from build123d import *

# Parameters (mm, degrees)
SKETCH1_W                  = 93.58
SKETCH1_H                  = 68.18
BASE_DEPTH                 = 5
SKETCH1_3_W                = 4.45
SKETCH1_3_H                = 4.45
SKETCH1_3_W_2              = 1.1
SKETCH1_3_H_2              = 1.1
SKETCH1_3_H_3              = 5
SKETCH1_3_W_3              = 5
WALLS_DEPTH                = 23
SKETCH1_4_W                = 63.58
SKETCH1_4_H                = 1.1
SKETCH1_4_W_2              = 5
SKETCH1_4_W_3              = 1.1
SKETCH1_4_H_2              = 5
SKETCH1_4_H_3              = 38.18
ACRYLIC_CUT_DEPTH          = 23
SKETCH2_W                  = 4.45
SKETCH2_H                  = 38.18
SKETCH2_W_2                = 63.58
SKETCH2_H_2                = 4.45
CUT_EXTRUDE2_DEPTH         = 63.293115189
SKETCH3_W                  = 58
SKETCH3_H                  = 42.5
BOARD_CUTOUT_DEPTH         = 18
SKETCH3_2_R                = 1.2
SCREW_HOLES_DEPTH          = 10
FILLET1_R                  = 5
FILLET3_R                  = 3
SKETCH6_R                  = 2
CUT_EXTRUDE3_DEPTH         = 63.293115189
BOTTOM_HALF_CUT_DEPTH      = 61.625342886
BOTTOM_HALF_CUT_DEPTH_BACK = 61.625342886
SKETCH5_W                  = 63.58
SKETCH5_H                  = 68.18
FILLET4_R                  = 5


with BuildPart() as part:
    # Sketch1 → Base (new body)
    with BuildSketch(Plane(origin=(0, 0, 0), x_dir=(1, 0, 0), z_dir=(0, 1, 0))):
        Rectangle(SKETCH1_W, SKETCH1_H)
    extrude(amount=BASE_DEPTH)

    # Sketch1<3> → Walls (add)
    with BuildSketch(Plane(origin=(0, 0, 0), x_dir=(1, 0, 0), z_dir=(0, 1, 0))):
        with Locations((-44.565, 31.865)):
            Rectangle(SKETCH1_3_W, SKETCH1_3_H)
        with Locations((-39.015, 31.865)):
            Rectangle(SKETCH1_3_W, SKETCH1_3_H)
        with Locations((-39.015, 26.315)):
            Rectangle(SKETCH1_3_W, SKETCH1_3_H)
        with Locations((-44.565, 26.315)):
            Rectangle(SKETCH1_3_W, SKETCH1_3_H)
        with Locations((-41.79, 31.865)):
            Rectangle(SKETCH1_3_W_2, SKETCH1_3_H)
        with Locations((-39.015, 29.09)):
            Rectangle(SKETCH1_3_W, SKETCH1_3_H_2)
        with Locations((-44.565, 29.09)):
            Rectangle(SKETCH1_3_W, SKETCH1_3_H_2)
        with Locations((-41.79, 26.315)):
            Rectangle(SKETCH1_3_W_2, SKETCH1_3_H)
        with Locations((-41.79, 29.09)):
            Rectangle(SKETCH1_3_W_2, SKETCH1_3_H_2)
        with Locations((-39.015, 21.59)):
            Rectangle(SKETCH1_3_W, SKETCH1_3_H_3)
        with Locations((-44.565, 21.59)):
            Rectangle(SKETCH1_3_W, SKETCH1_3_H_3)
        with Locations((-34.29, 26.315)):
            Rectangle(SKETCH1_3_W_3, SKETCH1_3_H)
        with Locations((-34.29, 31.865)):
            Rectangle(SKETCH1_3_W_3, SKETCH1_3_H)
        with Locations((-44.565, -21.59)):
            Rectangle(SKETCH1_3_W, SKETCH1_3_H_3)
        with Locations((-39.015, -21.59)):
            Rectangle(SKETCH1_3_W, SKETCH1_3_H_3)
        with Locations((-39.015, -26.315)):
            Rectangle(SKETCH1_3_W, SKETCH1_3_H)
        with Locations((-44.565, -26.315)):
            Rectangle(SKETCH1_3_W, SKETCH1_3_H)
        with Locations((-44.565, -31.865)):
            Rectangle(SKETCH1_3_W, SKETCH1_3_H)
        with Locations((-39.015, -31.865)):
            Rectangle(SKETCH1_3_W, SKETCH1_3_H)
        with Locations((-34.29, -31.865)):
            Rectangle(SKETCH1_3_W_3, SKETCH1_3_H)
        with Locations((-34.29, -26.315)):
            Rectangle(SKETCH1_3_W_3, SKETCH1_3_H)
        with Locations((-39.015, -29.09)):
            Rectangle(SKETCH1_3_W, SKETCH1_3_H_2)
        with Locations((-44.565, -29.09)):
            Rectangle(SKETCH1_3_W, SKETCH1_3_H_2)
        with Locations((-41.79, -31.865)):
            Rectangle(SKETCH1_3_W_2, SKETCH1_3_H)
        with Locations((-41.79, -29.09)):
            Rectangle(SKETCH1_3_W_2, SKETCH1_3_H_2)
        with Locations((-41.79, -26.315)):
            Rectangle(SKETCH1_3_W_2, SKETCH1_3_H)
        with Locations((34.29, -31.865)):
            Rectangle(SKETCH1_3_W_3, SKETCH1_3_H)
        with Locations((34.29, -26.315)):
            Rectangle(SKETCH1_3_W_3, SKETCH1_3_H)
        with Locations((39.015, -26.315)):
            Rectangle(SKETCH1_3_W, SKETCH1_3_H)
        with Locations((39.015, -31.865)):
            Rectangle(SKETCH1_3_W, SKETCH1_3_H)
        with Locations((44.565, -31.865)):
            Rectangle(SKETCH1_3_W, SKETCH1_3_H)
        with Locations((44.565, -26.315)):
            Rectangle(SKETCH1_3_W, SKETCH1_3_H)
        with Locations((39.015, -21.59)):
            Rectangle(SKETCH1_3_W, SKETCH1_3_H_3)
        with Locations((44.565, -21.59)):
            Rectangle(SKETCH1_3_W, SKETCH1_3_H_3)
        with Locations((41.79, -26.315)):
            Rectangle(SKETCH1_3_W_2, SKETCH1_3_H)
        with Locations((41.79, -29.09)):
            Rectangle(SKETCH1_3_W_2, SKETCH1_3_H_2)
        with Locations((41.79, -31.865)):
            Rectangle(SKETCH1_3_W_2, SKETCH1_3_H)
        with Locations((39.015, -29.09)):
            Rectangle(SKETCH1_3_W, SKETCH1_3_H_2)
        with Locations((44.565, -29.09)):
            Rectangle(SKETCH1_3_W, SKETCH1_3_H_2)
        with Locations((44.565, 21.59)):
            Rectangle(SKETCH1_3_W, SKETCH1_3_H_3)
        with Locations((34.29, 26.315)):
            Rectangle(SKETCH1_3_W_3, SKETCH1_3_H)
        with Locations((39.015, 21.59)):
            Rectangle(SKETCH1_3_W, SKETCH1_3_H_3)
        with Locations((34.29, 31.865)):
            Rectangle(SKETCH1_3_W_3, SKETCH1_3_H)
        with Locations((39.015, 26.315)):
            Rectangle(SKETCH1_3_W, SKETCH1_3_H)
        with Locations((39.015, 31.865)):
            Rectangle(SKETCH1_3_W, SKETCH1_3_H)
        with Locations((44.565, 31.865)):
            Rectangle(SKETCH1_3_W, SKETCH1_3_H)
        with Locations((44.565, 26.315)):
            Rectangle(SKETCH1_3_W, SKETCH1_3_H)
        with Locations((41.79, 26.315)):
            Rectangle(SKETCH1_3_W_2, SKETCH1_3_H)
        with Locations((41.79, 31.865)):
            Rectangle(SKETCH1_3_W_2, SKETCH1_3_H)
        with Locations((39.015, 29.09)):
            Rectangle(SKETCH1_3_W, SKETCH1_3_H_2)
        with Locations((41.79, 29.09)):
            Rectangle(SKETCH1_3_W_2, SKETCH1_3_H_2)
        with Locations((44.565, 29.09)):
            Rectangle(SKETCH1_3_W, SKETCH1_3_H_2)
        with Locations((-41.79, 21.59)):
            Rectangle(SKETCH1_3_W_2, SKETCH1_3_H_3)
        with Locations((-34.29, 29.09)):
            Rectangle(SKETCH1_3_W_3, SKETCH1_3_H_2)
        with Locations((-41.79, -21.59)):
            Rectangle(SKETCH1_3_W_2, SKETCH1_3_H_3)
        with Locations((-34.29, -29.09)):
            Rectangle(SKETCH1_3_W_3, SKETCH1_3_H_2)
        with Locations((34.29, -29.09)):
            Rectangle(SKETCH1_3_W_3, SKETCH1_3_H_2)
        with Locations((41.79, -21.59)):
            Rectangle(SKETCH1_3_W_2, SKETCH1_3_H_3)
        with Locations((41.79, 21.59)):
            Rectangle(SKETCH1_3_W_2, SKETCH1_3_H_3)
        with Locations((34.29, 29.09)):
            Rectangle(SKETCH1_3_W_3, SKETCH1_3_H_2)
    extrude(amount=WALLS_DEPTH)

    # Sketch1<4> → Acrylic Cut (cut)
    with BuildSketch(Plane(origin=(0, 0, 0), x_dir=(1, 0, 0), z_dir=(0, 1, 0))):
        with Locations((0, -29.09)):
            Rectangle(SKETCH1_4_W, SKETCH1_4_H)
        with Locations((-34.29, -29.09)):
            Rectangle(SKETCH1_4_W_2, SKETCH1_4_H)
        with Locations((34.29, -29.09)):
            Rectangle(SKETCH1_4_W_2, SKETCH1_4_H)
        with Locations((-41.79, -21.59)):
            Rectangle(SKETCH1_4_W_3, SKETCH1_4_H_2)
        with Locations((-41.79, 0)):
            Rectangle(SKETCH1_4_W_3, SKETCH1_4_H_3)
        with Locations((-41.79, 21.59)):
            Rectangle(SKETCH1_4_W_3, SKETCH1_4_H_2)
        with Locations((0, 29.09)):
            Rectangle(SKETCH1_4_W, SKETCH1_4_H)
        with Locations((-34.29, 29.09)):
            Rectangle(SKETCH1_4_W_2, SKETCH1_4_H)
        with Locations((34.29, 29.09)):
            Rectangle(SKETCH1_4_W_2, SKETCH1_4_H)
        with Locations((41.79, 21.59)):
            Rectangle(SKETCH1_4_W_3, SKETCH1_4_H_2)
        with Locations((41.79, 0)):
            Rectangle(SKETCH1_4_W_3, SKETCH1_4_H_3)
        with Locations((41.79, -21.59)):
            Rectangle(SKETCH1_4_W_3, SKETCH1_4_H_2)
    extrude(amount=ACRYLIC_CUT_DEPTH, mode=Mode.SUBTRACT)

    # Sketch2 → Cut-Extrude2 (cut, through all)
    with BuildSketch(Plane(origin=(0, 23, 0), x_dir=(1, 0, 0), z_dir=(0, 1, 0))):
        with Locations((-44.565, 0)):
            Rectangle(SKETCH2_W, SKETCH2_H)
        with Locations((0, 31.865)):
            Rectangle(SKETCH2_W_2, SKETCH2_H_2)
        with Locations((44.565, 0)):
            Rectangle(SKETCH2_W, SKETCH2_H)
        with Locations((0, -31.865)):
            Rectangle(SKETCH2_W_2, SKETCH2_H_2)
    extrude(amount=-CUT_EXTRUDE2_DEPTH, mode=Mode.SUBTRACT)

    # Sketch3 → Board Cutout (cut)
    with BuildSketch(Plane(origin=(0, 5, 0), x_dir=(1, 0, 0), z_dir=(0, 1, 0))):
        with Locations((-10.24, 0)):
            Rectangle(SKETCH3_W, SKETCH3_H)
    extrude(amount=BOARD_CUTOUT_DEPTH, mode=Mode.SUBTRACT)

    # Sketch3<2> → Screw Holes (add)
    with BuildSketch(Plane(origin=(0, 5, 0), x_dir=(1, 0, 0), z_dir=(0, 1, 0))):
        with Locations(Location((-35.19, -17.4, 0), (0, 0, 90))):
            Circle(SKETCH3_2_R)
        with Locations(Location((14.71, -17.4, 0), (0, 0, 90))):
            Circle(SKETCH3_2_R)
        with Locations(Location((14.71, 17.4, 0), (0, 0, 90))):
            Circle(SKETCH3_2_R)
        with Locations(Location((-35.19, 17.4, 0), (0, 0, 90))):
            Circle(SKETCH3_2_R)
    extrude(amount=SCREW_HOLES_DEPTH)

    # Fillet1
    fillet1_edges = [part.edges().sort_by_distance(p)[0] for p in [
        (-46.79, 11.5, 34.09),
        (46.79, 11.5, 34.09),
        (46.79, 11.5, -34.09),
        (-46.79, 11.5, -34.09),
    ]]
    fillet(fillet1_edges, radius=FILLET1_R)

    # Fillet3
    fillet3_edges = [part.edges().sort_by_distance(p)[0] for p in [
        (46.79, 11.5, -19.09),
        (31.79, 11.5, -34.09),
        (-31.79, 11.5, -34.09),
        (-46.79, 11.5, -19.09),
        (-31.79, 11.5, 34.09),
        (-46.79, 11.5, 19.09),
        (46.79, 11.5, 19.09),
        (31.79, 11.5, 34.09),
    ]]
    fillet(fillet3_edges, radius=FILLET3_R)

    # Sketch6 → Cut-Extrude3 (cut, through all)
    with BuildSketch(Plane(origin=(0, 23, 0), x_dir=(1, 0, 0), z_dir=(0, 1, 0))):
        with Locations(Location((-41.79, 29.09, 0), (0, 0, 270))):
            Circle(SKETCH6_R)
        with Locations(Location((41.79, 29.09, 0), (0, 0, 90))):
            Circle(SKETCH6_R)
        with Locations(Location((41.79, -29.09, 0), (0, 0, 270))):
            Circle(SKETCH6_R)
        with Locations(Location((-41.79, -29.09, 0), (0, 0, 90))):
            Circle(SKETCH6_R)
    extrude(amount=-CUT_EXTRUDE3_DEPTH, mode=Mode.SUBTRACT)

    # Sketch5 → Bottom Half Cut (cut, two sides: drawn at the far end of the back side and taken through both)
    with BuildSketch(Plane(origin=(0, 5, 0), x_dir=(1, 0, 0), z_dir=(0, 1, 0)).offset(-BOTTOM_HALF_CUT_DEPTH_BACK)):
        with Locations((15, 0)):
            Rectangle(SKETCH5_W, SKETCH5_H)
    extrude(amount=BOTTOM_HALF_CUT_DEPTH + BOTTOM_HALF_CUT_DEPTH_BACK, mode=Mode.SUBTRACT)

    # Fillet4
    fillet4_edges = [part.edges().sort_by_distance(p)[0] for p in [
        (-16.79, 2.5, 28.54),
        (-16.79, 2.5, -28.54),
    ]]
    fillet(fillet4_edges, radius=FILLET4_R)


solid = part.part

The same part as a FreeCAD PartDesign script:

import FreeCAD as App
import Part
import Sketcher

V = App.Vector


def edges_at(feature, points):
    """Names of the edges that pass closest to the given points."""
    edges = feature.Shape.Edges
    near = lambda p: min(range(len(edges)), key=lambda i: edges[i].distToShape(Part.Vertex(*p))[0])
    return sorted({f"Edge{near(p) + 1}" for p in points})


def add_polygon(sketch, points):
    """Adds a closed chain of lines whose ends are joined by coincident constraints."""
    first, n = sketch.GeometryCount, len(points)
    for a, b in zip(points, points[1:] + points[:1]):
        sketch.addGeometry(Part.LineSegment(App.Vector(*a, 0), App.Vector(*b, 0)), False)
    for i in range(n):
        sketch.addConstraint(Sketcher.Constraint("Coincident", first + i, 2, first + (i + 1) % n, 1))

doc = App.newDocument("Part")
params = doc.addObject("Spreadsheet::Sheet", "Params")
for row, (alias, value) in enumerate([
    ("sketch1_width", "93.58 mm"),
    ("sketch1_height", "68.18 mm"),
    ("pad1_length", "5 mm"),
    ("sketch2_width", "10 mm"),
    ("sketch2_width2", "5 mm"),
    ("pad2_length", "23 mm"),
    ("sketch3_width", "1.1 mm"),
    ("sketch3_width2", "73.58 mm"),
    ("sketch3_height", "48.18 mm"),
    ("pocket1_length", "23 mm"),
    ("sketch4_width", "4.45 mm"),
    ("sketch4_width2", "63.58 mm"),
    ("sketch4_height", "38.18 mm"),
    ("sketch5_width", "58 mm"),
    ("sketch5_height", "42.5 mm"),
    ("pocket3_length", "18 mm"),
    ("sketch6_diameter", "2.4 mm"),
    ("pad3_length", "10 mm"),
    ("fillet_radius", "5 mm"),
    ("fillet2_radius", "3 mm"),
    ("sketch7_diameter", "4 mm"),
    ("sketch8_width", "63.58 mm"),
    ("sketch8_height", "68.18 mm"),
    ("fillet3_radius", "5 mm"),
], start=1):
    params.set(f"A{row}", alias)
    params.set(f"B{row}", "=" + value)
    params.setAlias(f"B{row}", alias)

body = doc.addObject("PartDesign::Body", "Body")

sketch1 = doc.addObject("Sketcher::SketchObject", "Sketch")
body.addObject(sketch1)
sketch1.AttachmentSupport = (doc.XZ_Plane, [""])
sketch1.MapMode = "FlatFace"
add_polygon(sketch1, [(-46.79, -34.09), (-46.79, 34.09), (46.79, 34.09), (46.79, -34.09)])
sketch1.addConstraint(Sketcher.Constraint("Vertical", 0))
sketch1.addConstraint(Sketcher.Constraint("Horizontal", 1))
sketch1.addConstraint(Sketcher.Constraint("Vertical", 2))
sketch1.addConstraint(Sketcher.Constraint("Horizontal", 3))
sketch1.addConstraint(Sketcher.Constraint("Symmetric", 0, 2, 2, 2, -1, 1))
sketch1.addConstraint(Sketcher.Constraint("DistanceX", 1, 1, 1, 2, 93.58))
sketch1.addConstraint(Sketcher.Constraint("DistanceY", 0, 1, 0, 2, 68.18))
sketch1.setExpression("Constraints[9]", "Params.sketch1_width")
sketch1.setExpression("Constraints[10]", "Params.sketch1_height")
pad1 = doc.addObject("PartDesign::Pad", "Pad")
body.addObject(pad1)
pad1.Profile = sketch1
pad1.setExpression("Length", "Params.pad1_length")
pad1.Reversed = True

sketch2 = doc.addObject("Sketcher::SketchObject", "Sketch001")
body.addObject(sketch2)
sketch2.AttachmentSupport = (doc.XZ_Plane, [""])
sketch2.MapMode = "FlatFace"
add_polygon(sketch2, [(-46.79, -34.09), (-46.79, -19.09), (-36.79, -19.09), (-36.79, -24.09), (-31.79, -24.09), (-31.79, -34.09)])
add_polygon(sketch2, [(-46.79, 19.09), (-46.79, 34.09), (-31.79, 34.09), (-31.79, 24.09), (-36.79, 24.09), (-36.79, 19.09)])
add_polygon(sketch2, [(31.79, 34.09), (46.79, 34.09), (46.79, 19.09), (36.79, 19.09), (36.79, 24.09), (31.79, 24.09)])
add_polygon(sketch2, [(46.79, -19.09), (46.79, -34.09), (31.79, -34.09), (31.79, -24.09), (36.79, -24.09), (36.79, -19.09)])
sketch2.addConstraint(Sketcher.Constraint("Vertical", 0))
sketch2.addConstraint(Sketcher.Constraint("Horizontal", 1))
sketch2.addConstraint(Sketcher.Constraint("Vertical", 2))
sketch2.addConstraint(Sketcher.Constraint("Horizontal", 3))
sketch2.addConstraint(Sketcher.Constraint("Vertical", 4))
sketch2.addConstraint(Sketcher.Constraint("Horizontal", 5))
sketch2.addConstraint(Sketcher.Constraint("Vertical", 6))
sketch2.addConstraint(Sketcher.Constraint("Horizontal", 7))
sketch2.addConstraint(Sketcher.Constraint("Vertical", 8))
sketch2.addConstraint(Sketcher.Constraint("Horizontal", 9))
sketch2.addConstraint(Sketcher.Constraint("Vertical", 10))
sketch2.addConstraint(Sketcher.Constraint("Horizontal", 11))
sketch2.addConstraint(Sketcher.Constraint("Horizontal", 12))
sketch2.addConstraint(Sketcher.Constraint("Vertical", 13))
sketch2.addConstraint(Sketcher.Constraint("Horizontal", 14))
sketch2.addConstraint(Sketcher.Constraint("Vertical", 15))
sketch2.addConstraint(Sketcher.Constraint("Horizontal", 16))
sketch2.addConstraint(Sketcher.Constraint("Vertical", 17))
sketch2.addConstraint(Sketcher.Constraint("Vertical", 18))
sketch2.addConstraint(Sketcher.Constraint("Horizontal", 19))
sketch2.addConstraint(Sketcher.Constraint("Vertical", 20))
sketch2.addConstraint(Sketcher.Constraint("Horizontal", 21))
sketch2.addConstraint(Sketcher.Constraint("Vertical", 22))
sketch2.addConstraint(Sketcher.Constraint("Horizontal", 23))
sketch2.addConstraint(Sketcher.Constraint("Symmetric", 5, 2, 12, 2, -1, 1))
sketch2.addConstraint(Sketcher.Constraint("Symmetric", 1, 2, 14, 2, -1, 1))
sketch2.addConstraint(Sketcher.Constraint("Symmetric", 3, 2, 16, 2, -1, 1))
sketch2.addConstraint(Sketcher.Constraint("Symmetric", 6, 2, 18, 2, -1, 1))
sketch2.addConstraint(Sketcher.Constraint("Symmetric", 8, 2, 20, 2, -1, 1))
sketch2.addConstraint(Sketcher.Constraint("Symmetric", 10, 2, 22, 2, -1, 1))
sketch2.addConstraint(Sketcher.Constraint("Symmetric", 6, 2, 12, 2, -2))
sketch2.addConstraint(Sketcher.Constraint("Symmetric", 10, 2, 14, 2, -2))
sketch2.addConstraint(Sketcher.Constraint("Symmetric", 8, 2, 16, 2, -2))
sketch2.addConstraint(Sketcher.Constraint("Equal", 19, 0))
sketch2.addConstraint(Sketcher.Constraint("Equal", 21, 2))
sketch2.addConstraint(Sketcher.Constraint("DistanceX", 1, 1, 1, 2, 10.0))
sketch2.addConstraint(Sketcher.Constraint("DistanceX", 3, 1, 3, 2, 5.0))
sketch2.addConstraint(Sketcher.Constraint("DistanceX", 0, 2, -1, 1, 46.79))
sketch2.addConstraint(Sketcher.Constraint("DistanceY", 0, 2, -1, 1, 19.09))
sketch2.setExpression("Constraints[59]", "Params.sketch2_width")
sketch2.setExpression("Constraints[60]", "Params.sketch2_width2")
pad2 = doc.addObject("PartDesign::Pad", "Pad001")
body.addObject(pad2)
pad2.Profile = sketch2
pad2.setExpression("Length", "Params.pad2_length")
pad2.Reversed = True

sketch3 = doc.addObject("Sketcher::SketchObject", "Sketch002")
body.addObject(sketch3)
sketch3.AttachmentSupport = (doc.XZ_Plane, [""])
sketch3.MapMode = "FlatFace"
add_polygon(sketch3, [(-36.79, 28.54), (-36.79, 29.64), (36.79, 29.64), (36.79, 28.54)])
add_polygon(sketch3, [(-42.34, 24.09), (-41.24, 24.09), (-41.24, -24.09), (-42.34, -24.09)])
add_polygon(sketch3, [(-36.79, -29.64), (-36.79, -28.54), (36.79, -28.54), (36.79, -29.64)])
add_polygon(sketch3, [(41.24, -24.09), (41.24, 24.09), (42.34, 24.09), (42.34, -24.09)])
sketch3.addConstraint(Sketcher.Constraint("Vertical", 0))
sketch3.addConstraint(Sketcher.Constraint("Horizontal", 1))
sketch3.addConstraint(Sketcher.Constraint("Vertical", 2))
sketch3.addConstraint(Sketcher.Constraint("Horizontal", 3))
sketch3.addConstraint(Sketcher.Constraint("Horizontal", 4))
sketch3.addConstraint(Sketcher.Constraint("Vertical", 5))
sketch3.addConstraint(Sketcher.Constraint("Horizontal", 6))
sketch3.addConstraint(Sketcher.Constraint("Vertical", 7))
sketch3.addConstraint(Sketcher.Constraint("Vertical", 8))
sketch3.addConstraint(Sketcher.Constraint("Horizontal", 9))
sketch3.addConstraint(Sketcher.Constraint("Vertical", 10))
sketch3.addConstraint(Sketcher.Constraint("Horizontal", 11))
sketch3.addConstraint(Sketcher.Constraint("Vertical", 12))
sketch3.addConstraint(Sketcher.Constraint("Horizontal", 13))
sketch3.addConstraint(Sketcher.Constraint("Vertical", 14))
sketch3.addConstraint(Sketcher.Constraint("Horizontal", 15))
sketch3.addConstraint(Sketcher.Constraint("Symmetric", 2, 2, 8, 2, -1, 1))
sketch3.addConstraint(Sketcher.Constraint("Symmetric", 0, 2, 10, 2, -1, 1))
sketch3.addConstraint(Sketcher.Constraint("Symmetric", 5, 2, 12, 2, -1, 1))
sketch3.addConstraint(Sketcher.Constraint("Symmetric", 7, 2, 14, 2, -1, 1))
sketch3.addConstraint(Sketcher.Constraint("Horizontal", 7, 2, 12, 2))
sketch3.addConstraint(Sketcher.Constraint("Vertical", 3, 2, 8, 2))
sketch3.addConstraint(Sketcher.Constraint("Equal", 15, 0))
sketch3.addConstraint(Sketcher.Constraint("DistanceX", 4, 1, 4, 2, 1.1))
sketch3.addConstraint(Sketcher.Constraint("DistanceX", 1, 1, 1, 2, 73.58))
sketch3.addConstraint(Sketcher.Constraint("DistanceY", 5, 2, 5, 1, 48.18))
sketch3.addConstraint(Sketcher.Constraint("DistanceY", -1, 1, 0, 2, 29.64))
sketch3.addConstraint(Sketcher.Constraint("DistanceX", 4, 2, -1, 1, 41.24))
sketch3.setExpression("Constraints[39]", "Params.sketch3_width")
sketch3.setExpression("Constraints[40]", "Params.sketch3_width2")
sketch3.setExpression("Constraints[41]", "Params.sketch3_height")
pocket1 = doc.addObject("PartDesign::Pocket", "Pocket")
body.addObject(pocket1)
pocket1.Profile = sketch3
pocket1.setExpression("Length", "Params.pocket1_length")

sketch4 = doc.addObject("Sketcher::SketchObject", "Sketch003")
body.addObject(sketch4)
sketch4.AttachmentSupport = (doc.XZ_Plane, [""])
sketch4.MapMode = "FlatFace"
sketch4.AttachmentOffset = App.Placement(V(0, 0, -23), App.Rotation())
add_polygon(sketch4, [(-46.79, -19.09), (-46.79, 19.09), (-42.34, 19.09), (-42.34, -19.09)])
add_polygon(sketch4, [(-31.79, -34.09), (-31.79, -29.64), (31.79, -29.64), (31.79, -34.09)])
add_polygon(sketch4, [(42.34, -19.09), (42.34, 19.09), (46.79, 19.09), (46.79, -19.09)])
add_polygon(sketch4, [(-31.79, 29.64), (-31.79, 34.09), (31.79, 34.09), (31.79, 29.64)])
sketch4.addConstraint(Sketcher.Constraint("Vertical", 0))
sketch4.addConstraint(Sketcher.Constraint("Horizontal", 1))
sketch4.addConstraint(Sketcher.Constraint("Vertical", 2))
sketch4.addConstraint(Sketcher.Constraint("Horizontal", 3))
sketch4.addConstraint(Sketcher.Constraint("Vertical", 4))
sketch4.addConstraint(Sketcher.Constraint("Horizontal", 5))
sketch4.addConstraint(Sketcher.Constraint("Vertical", 6))
sketch4.addConstraint(Sketcher.Constraint("Horizontal", 7))
sketch4.addConstraint(Sketcher.Constraint("Vertical", 8))
sketch4.addConstraint(Sketcher.Constraint("Horizontal", 9))
sketch4.addConstraint(Sketcher.Constraint("Vertical", 10))
sketch4.addConstraint(Sketcher.Constraint("Horizontal", 11))
sketch4.addConstraint(Sketcher.Constraint("Vertical", 12))
sketch4.addConstraint(Sketcher.Constraint("Horizontal", 13))
sketch4.addConstraint(Sketcher.Constraint("Vertical", 14))
sketch4.addConstraint(Sketcher.Constraint("Horizontal", 15))
sketch4.addConstraint(Sketcher.Constraint("Symmetric", 2, 2, 8, 2, -1, 1))
sketch4.addConstraint(Sketcher.Constraint("Symmetric", 0, 2, 10, 2, -1, 1))
sketch4.addConstraint(Sketcher.Constraint("Symmetric", 6, 2, 12, 2, -1, 1))
sketch4.addConstraint(Sketcher.Constraint("Symmetric", 4, 2, 14, 2, -1, 1))
sketch4.addConstraint(Sketcher.Constraint("Horizontal", 1, 2, 8, 2))
sketch4.addConstraint(Sketcher.Constraint("Vertical", 7, 2, 12, 2))
sketch4.addConstraint(Sketcher.Constraint("Equal", 11, 4))
sketch4.addConstraint(Sketcher.Constraint("DistanceX", 3, 2, 4, 2, 15.0))
sketch4.addConstraint(Sketcher.Constraint("DistanceY", 6, 2, 2, 2, 15.0))
sketch4.addConstraint(Sketcher.Constraint("DistanceX", 1, 1, 1, 2, 4.45))
sketch4.addConstraint(Sketcher.Constraint("DistanceX", 5, 1, 5, 2, 63.58))
sketch4.addConstraint(Sketcher.Constraint("DistanceY", 0, 1, 0, 2, 38.18))
sketch4.setExpression("Constraints[41]", "Params.sketch4_width")
sketch4.setExpression("Constraints[42]", "Params.sketch4_width2")
sketch4.setExpression("Constraints[43]", "Params.sketch4_height")
pocket2 = doc.addObject("PartDesign::Pocket", "Pocket001")
body.addObject(pocket2)
pocket2.Profile = sketch4
pocket2.Type = "ThroughAll"
pocket2.Reversed = True

sketch5 = doc.addObject("Sketcher::SketchObject", "Sketch004")
body.addObject(sketch5)
sketch5.AttachmentSupport = (doc.XZ_Plane, [""])
sketch5.MapMode = "FlatFace"
sketch5.AttachmentOffset = App.Placement(V(0, 0, -5), App.Rotation())
add_polygon(sketch5, [(-39.24, -21.25), (-39.24, 21.25), (18.76, 21.25), (18.76, -21.25)])
sketch5.addConstraint(Sketcher.Constraint("Vertical", 0))
sketch5.addConstraint(Sketcher.Constraint("Horizontal", 1))
sketch5.addConstraint(Sketcher.Constraint("Vertical", 2))
sketch5.addConstraint(Sketcher.Constraint("Horizontal", 3))
sketch5.addConstraint(Sketcher.Constraint("DistanceX", 1, 1, 1, 2, 58.0))
sketch5.addConstraint(Sketcher.Constraint("DistanceY", 0, 1, 0, 2, 42.5))
sketch5.addConstraint(Sketcher.Constraint("DistanceX", 0, 2, -1, 1, 39.24))
sketch5.addConstraint(Sketcher.Constraint("DistanceY", -1, 1, 0, 2, 21.25))
sketch5.setExpression("Constraints[8]", "Params.sketch5_width")
sketch5.setExpression("Constraints[9]", "Params.sketch5_height")
pocket3 = doc.addObject("PartDesign::Pocket", "Pocket002")
body.addObject(pocket3)
pocket3.Profile = sketch5
pocket3.setExpression("Length", "Params.pocket3_length")

sketch6 = doc.addObject("Sketcher::SketchObject", "Sketch005")
body.addObject(sketch6)
sketch6.AttachmentSupport = (doc.XZ_Plane, [""])
sketch6.MapMode = "FlatFace"
sketch6.AttachmentOffset = App.Placement(V(0, 0, -5), App.Rotation())
sketch6.addGeometry(Part.Circle(V(-35.19, 17.4, 0), V(0, 0, 1), 1.2), False)
sketch6.addGeometry(Part.Circle(V(14.71, 17.4, 0), V(0, 0, 1), 1.2), False)
sketch6.addGeometry(Part.Circle(V(14.71, -17.4, 0), V(0, 0, 1), 1.2), False)
sketch6.addGeometry(Part.Circle(V(-35.19, -17.4, 0), V(0, 0, 1), 1.2), False)
sketch6.addConstraint(Sketcher.Constraint("Equal", 0, 1))
sketch6.addConstraint(Sketcher.Constraint("Equal", 1, 2))
sketch6.addConstraint(Sketcher.Constraint("Equal", 2, 3))
sketch6.addConstraint(Sketcher.Constraint("Symmetric", 1, 3, 2, 3, -1))
sketch6.addConstraint(Sketcher.Constraint("Symmetric", 0, 3, 3, 3, -1))
sketch6.addConstraint(Sketcher.Constraint("Horizontal", 0, 3, 1, 3))
sketch6.addConstraint(Sketcher.Constraint("Diameter", 0, 2.4))
sketch6.addConstraint(Sketcher.Constraint("DistanceY", -1, 1, 0, 3, 17.4))
sketch6.addConstraint(Sketcher.Constraint("DistanceX", 0, 3, 1, 3, 49.9))
sketch6.addConstraint(Sketcher.Constraint("DistanceX", 0, 3, -1, 1, 35.19))
sketch6.setExpression("Constraints[6]", "Params.sketch6_diameter")
pad3 = doc.addObject("PartDesign::Pad", "Pad002")
body.addObject(pad3)
pad3.Profile = sketch6
pad3.setExpression("Length", "Params.pad3_length")
pad3.Reversed = True
doc.recompute()

fillet = doc.addObject("PartDesign::Fillet", "Fillet")
body.addObject(fillet)
fillet.Base = (pad3, edges_at(pad3, [
    (-46.79, 11.5, 34.09),
    (46.79, 11.5, 34.09),
    (46.79, 11.5, -34.09),
    (-46.79, 11.5, -34.09),
]))
fillet.setExpression("Radius", "Params.fillet_radius")
doc.recompute()

fillet2 = doc.addObject("PartDesign::Fillet", "Fillet001")
body.addObject(fillet2)
fillet2.Base = (fillet, edges_at(fillet, [
    (46.79, 11.5, -19.09),
    (31.79, 11.5, -34.09),
    (-31.79, 11.5, -34.09),
    (-46.79, 11.5, -19.09),
    (-31.79, 11.5, 34.09),
    (-46.79, 11.5, 19.09),
    (46.79, 11.5, 19.09),
    (31.79, 11.5, 34.09),
]))
fillet2.setExpression("Radius", "Params.fillet2_radius")

sketch7 = doc.addObject("Sketcher::SketchObject", "Sketch006")
body.addObject(sketch7)
sketch7.AttachmentSupport = (doc.XZ_Plane, [""])
sketch7.MapMode = "FlatFace"
sketch7.AttachmentOffset = App.Placement(V(0, 0, -23), App.Rotation())
sketch7.addGeometry(Part.Circle(V(-41.79, -29.09, 0), V(0, 0, 1), 2), False)
sketch7.addGeometry(Part.Circle(V(41.79, -29.09, 0), V(0, 0, 1), 2), False)
sketch7.addGeometry(Part.Circle(V(41.79, 29.09, 0), V(0, 0, 1), 2), False)
sketch7.addGeometry(Part.Circle(V(-41.79, 29.09, 0), V(0, 0, 1), 2), False)
sketch7.addConstraint(Sketcher.Constraint("Equal", 0, 1))
sketch7.addConstraint(Sketcher.Constraint("Equal", 1, 2))
sketch7.addConstraint(Sketcher.Constraint("Equal", 2, 3))
sketch7.addConstraint(Sketcher.Constraint("Symmetric", 0, 3, 2, 3, -1, 1))
sketch7.addConstraint(Sketcher.Constraint("Symmetric", 1, 3, 3, 3, -1, 1))
sketch7.addConstraint(Sketcher.Constraint("Symmetric", 0, 3, 1, 3, -2))
sketch7.addConstraint(Sketcher.Constraint("Diameter", 0, 4.0))
sketch7.addConstraint(Sketcher.Constraint("DistanceX", 0, 3, -1, 1, 41.79))
sketch7.addConstraint(Sketcher.Constraint("DistanceY", 0, 3, -1, 1, 29.09))
sketch7.setExpression("Constraints[6]", "Params.sketch7_diameter")
pocket4 = doc.addObject("PartDesign::Pocket", "Pocket003")
body.addObject(pocket4)
pocket4.Profile = sketch7
pocket4.Type = "ThroughAll"
pocket4.Reversed = True

sketch8 = doc.addObject("Sketcher::SketchObject", "Sketch007")
body.addObject(sketch8)
sketch8.AttachmentSupport = (doc.XZ_Plane, [""])
sketch8.MapMode = "FlatFace"
sketch8.AttachmentOffset = App.Placement(V(0, 0, -5), App.Rotation())
add_polygon(sketch8, [(-16.79, -34.09), (-16.79, 34.09), (46.79, 34.09), (46.79, -34.09)])
sketch8.addConstraint(Sketcher.Constraint("Vertical", 0))
sketch8.addConstraint(Sketcher.Constraint("Horizontal", 1))
sketch8.addConstraint(Sketcher.Constraint("Vertical", 2))
sketch8.addConstraint(Sketcher.Constraint("Horizontal", 3))
sketch8.addConstraint(Sketcher.Constraint("DistanceX", 1, 1, 1, 2, 63.58))
sketch8.addConstraint(Sketcher.Constraint("DistanceY", 0, 1, 0, 2, 68.18))
sketch8.addConstraint(Sketcher.Constraint("DistanceX", 0, 2, -1, 1, 16.79))
sketch8.addConstraint(Sketcher.Constraint("DistanceY", -1, 1, 0, 2, 34.09))
sketch8.setExpression("Constraints[8]", "Params.sketch8_width")
sketch8.setExpression("Constraints[9]", "Params.sketch8_height")
pocket5 = doc.addObject("PartDesign::Pocket", "Pocket004")
body.addObject(pocket5)
pocket5.Profile = sketch8
pocket5.Type = "ThroughAll"
pocket5.Midplane = True
doc.recompute()

fillet3 = doc.addObject("PartDesign::Fillet", "Fillet002")
body.addObject(fillet3)
fillet3.Base = (pocket5, edges_at(pocket5, [(-16.79, 2.5, 28.54), (-16.79, 2.5, -28.54)]))
fillet3.setExpression("Radius", "Params.fillet3_radius")

doc.recompute()
